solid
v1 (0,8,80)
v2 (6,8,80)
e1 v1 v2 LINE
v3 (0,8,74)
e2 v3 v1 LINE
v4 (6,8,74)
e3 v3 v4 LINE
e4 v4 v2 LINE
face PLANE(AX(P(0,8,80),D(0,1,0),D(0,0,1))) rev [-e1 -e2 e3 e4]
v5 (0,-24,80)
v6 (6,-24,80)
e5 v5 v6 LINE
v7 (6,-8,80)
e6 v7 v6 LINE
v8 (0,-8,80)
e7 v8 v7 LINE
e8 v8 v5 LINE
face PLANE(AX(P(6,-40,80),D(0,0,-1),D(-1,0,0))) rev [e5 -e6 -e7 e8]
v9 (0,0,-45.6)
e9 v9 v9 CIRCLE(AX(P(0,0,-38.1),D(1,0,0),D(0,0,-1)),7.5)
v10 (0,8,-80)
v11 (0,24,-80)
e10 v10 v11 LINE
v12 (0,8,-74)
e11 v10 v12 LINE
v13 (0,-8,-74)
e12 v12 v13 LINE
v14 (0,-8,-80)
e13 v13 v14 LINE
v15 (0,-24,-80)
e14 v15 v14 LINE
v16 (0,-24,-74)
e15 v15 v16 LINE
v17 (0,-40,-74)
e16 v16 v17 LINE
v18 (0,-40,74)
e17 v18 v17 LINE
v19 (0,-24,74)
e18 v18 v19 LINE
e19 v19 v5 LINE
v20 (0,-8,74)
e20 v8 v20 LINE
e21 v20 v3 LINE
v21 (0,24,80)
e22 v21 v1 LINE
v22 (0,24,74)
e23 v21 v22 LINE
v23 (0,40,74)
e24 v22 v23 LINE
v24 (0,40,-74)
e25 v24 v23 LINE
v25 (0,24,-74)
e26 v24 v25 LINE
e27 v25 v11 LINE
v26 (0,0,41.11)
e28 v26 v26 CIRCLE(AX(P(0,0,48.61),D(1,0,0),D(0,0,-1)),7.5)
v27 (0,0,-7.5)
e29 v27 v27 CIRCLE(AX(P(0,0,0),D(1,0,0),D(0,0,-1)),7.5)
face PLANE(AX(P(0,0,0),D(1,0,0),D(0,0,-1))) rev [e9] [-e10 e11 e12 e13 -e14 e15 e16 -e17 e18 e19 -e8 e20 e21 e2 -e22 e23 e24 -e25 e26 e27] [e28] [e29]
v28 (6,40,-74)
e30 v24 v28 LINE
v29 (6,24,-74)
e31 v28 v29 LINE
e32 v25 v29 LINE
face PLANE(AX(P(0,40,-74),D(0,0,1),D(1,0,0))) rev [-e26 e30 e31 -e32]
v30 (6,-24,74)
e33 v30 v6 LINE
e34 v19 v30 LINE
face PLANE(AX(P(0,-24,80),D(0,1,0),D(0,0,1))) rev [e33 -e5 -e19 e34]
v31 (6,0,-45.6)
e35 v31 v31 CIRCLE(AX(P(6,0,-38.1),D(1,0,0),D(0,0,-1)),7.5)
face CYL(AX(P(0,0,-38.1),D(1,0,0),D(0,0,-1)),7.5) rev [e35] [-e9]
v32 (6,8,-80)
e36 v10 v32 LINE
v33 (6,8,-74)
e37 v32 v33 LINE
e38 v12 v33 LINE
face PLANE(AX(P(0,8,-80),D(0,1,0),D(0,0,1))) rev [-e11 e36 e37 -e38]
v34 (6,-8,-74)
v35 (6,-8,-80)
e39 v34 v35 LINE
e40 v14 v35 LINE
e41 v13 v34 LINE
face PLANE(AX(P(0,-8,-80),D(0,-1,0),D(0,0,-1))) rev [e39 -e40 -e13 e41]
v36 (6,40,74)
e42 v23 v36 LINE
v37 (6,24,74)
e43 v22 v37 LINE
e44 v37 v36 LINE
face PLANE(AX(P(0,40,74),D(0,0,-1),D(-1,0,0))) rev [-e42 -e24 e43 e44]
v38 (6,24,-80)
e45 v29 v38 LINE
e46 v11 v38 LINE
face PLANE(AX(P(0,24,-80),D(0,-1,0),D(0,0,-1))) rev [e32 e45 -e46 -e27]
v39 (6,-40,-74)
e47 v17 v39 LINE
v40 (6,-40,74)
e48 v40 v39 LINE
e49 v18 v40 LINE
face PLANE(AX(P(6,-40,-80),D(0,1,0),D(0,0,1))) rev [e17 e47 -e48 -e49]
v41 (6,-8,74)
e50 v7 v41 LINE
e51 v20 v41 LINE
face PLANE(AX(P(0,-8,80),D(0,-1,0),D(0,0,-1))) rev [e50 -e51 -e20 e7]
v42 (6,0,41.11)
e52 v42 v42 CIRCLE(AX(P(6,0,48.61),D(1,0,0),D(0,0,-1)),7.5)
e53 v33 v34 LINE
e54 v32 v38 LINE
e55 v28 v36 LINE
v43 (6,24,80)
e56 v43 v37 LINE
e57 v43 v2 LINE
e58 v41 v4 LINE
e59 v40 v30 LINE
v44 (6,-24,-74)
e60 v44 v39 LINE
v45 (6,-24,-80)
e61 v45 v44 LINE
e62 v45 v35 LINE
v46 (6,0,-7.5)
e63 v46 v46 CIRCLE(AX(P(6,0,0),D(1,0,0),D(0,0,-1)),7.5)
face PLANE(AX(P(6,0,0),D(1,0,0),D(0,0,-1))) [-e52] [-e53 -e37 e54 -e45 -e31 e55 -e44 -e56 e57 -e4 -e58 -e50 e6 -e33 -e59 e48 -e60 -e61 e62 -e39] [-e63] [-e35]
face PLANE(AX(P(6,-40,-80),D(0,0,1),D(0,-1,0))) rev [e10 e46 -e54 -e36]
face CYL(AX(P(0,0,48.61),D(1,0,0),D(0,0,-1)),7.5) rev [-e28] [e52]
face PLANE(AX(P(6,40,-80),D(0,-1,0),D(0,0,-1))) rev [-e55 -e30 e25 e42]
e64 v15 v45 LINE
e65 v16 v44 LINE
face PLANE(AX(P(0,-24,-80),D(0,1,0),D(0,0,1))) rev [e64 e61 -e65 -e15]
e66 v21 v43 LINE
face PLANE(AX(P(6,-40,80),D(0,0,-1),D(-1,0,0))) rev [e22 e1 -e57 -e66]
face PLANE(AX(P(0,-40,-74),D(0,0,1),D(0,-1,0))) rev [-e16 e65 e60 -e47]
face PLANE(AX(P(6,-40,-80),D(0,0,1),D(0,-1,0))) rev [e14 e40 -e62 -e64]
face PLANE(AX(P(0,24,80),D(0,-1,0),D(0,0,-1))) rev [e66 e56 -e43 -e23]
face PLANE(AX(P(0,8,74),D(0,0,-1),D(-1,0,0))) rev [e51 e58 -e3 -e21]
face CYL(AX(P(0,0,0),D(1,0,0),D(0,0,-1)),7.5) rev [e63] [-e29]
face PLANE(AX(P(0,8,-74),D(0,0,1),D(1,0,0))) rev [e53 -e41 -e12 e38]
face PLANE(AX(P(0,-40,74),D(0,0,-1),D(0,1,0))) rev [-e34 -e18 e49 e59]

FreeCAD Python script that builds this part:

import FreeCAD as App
import Part
import Sketcher

V = App.Vector
Q = App.Units.Quantity

doc = App.newDocument("Part")
body = doc.addObject("PartDesign::Body", "Body")

sketch1 = body.newObject("Sketcher::SketchObject", "Sketch")
sketch1.AttachmentSupport = (doc.getObject("YZ_Plane"), [""])
sketch1.MapMode = "FlatFace"
sketch1.addGeometry([
    Part.LineSegment(V(40, 80, 0), V(-40, 80, 0)),
    Part.LineSegment(V(-40, 80, 0), V(-40, -80, 0)),
    Part.LineSegment(V(-40, -80, 0), V(40, -80, 0)),
    Part.LineSegment(V(40, -80, 0), V(40, 80, 0)),
], False)
sketch1.addConstraint([
    Sketcher.Constraint("Coincident", 0, 2, 1, 1),
    Sketcher.Constraint("Coincident", 1, 2, 2, 1),
    Sketcher.Constraint("Coincident", 2, 2, 3, 1),
    Sketcher.Constraint("Coincident", 3, 2, 0, 1),
    Sketcher.Constraint("Horizontal", 0),
    Sketcher.Constraint("Vertical", 1),
    Sketcher.Constraint("Horizontal", 2),
    Sketcher.Constraint("Vertical", 3),
    Sketcher.Constraint("Symmetric", 0, 2, 2, 2, -1, 1),
    Sketcher.Constraint("DistanceX", 0, 2, 0, 1, Q("80 mm")),
    Sketcher.Constraint("DistanceY", 1, 2, 1, 1, Q("160 mm")),
])
pad1 = body.newObject("PartDesign::Pad", "Pad")
pad1.Profile = sketch1
pad1.Length = 6

sketch2 = body.newObject("Sketcher::SketchObject", "Sketch001")
sketch2.AttachmentSupport = (doc.getObject("YZ_Plane"), [""])
sketch2.MapMode = "FlatFace"
sketch2.AttachmentOffset = App.Placement(V(0, 0, 6), App.Rotation())
sketch2.addGeometry([
    Part.Circle(V(0, 49, 0), V(0, 0, 1), 8),
    Part.Circle(V(0, 0, 0), V(0, 0, 1), 8),
    Part.Circle(V(0, -38, 0), V(0, 0, 1), 8),
], False)
sketch2.addConstraint([
    Sketcher.Constraint("Coincident", 1, 3, -1, 1),
    Sketcher.Constraint("Equal", 0, 1),
    Sketcher.Constraint("Equal", 1, 2),
    Sketcher.Constraint("PointOnObject", 0, 3, -2),
    Sketcher.Constraint("PointOnObject", 2, 3, -2),
    Sketcher.Constraint("Diameter", 0, Q("15 mm")),
    Sketcher.Constraint("DistanceY", 2, 3, -1, 1, Q("38.1 mm")),
    Sketcher.Constraint("DistanceY", -1, 1, 0, 3, Q("48.61 mm")),
])
pocket1 = body.newObject("PartDesign::Pocket", "Pocket")
pocket1.Profile = sketch2
pocket1.Length = 6

sketch3 = body.newObject("Sketcher::SketchObject", "Sketch002")
sketch3.AttachmentSupport = (doc.getObject("YZ_Plane"), [""])
sketch3.MapMode = "FlatFace"
sketch3.AttachmentOffset = App.Placement(V(0, 0, 6), App.Rotation())
sketch3.addGeometry([
    Part.LineSegment(V(40, 80, 0), V(24, 80, 0)),
    Part.LineSegment(V(24, 80, 0), V(24, 74, 0)),
    Part.LineSegment(V(24, 74, 0), V(40, 74, 0)),
    Part.LineSegment(V(40, 74, 0), V(40, 80, 0)),
    Part.LineSegment(V(-24, 80, 0), V(-40, 80, 0)),
    Part.LineSegment(V(-40, 80, 0), V(-40, 74, 0)),
    Part.LineSegment(V(-40, 74, 0), V(-24, 74, 0)),
    Part.LineSegment(V(-24, 74, 0), V(-24, 80, 0)),
    Part.LineSegment(V(-24, -74, 0), V(-40, -74, 0)),
    Part.LineSegment(V(-40, -74, 0), V(-40, -80, 0)),
    Part.LineSegment(V(-40, -80, 0), V(-24, -80, 0)),
    Part.LineSegment(V(-24, -80, 0), V(-24, -74, 0)),
    Part.LineSegment(V(40, -74, 0), V(24, -74, 0)),
    Part.LineSegment(V(24, -74, 0), V(24, -80, 0)),
    Part.LineSegment(V(24, -80, 0), V(40, -80, 0)),
    Part.LineSegment(V(40, -80, 0), V(40, -74, 0)),
    Part.LineSegment(V(8, -74, 0), V(-8, -74, 0)),
    Part.LineSegment(V(-8, -74, 0), V(-8, -80, 0)),
    Part.LineSegment(V(-8, -80, 0), V(8, -80, 0)),
    Part.LineSegment(V(8, -80, 0), V(8, -74, 0)),
    Part.LineSegment(V(8, 80, 0), V(-8, 80, 0)),
    Part.LineSegment(V(-8, 80, 0), V(-8, 74, 0)),
    Part.LineSegment(V(-8, 74, 0), V(8, 74, 0)),
    Part.LineSegment(V(8, 74, 0), V(8, 80, 0)),
], False)
sketch3.addConstraint([
    Sketcher.Constraint("Coincident", 0, 2, 1, 1),
    Sketcher.Constraint("Coincident", 1, 2, 2, 1),
    Sketcher.Constraint("Coincident", 2, 2, 3, 1),
    Sketcher.Constraint("Coincident", 3, 2, 0, 1),
    Sketcher.Constraint("Coincident", 4, 2, 5, 1),
    Sketcher.Constraint("Coincident", 5, 2, 6, 1),
    Sketcher.Constraint("Coincident", 6, 2, 7, 1),
    Sketcher.Constraint("Coincident", 7, 2, 4, 1),
    Sketcher.Constraint("Coincident", 8, 2, 9, 1),
    Sketcher.Constraint("Coincident", 9, 2, 10, 1),
    Sketcher.Constraint("Coincident", 10, 2, 11, 1),
    Sketcher.Constraint("Coincident", 11, 2, 8, 1),
    Sketcher.Constraint("Coincident", 12, 2, 13, 1),
    Sketcher.Constraint("Coincident", 13, 2, 14, 1),
    Sketcher.Constraint("Coincident", 14, 2, 15, 1),
    Sketcher.Constraint("Coincident", 15, 2, 12, 1),
    Sketcher.Constraint("Coincident", 16, 2, 17, 1),
    Sketcher.Constraint("Coincident", 17, 2, 18, 1),
    Sketcher.Constraint("Coincident", 18, 2, 19, 1),
    Sketcher.Constraint("Coincident", 19, 2, 16, 1),
    Sketcher.Constraint("Coincident", 20, 2, 21, 1),
    Sketcher.Constraint("Coincident", 21, 2, 22, 1),
    Sketcher.Constraint("Coincident", 22, 2, 23, 1),
    Sketcher.Constraint("Coincident", 23, 2, 20, 1),
    Sketcher.Constraint("Horizontal", 0),
    Sketcher.Constraint("Vertical", 1),
    Sketcher.Constraint("Horizontal", 2),
    Sketcher.Constraint("Vertical", 3),
    Sketcher.Constraint("Horizontal", 4),
    Sketcher.Constraint("Vertical", 5),
    Sketcher.Constraint("Horizontal", 6),
    Sketcher.Constraint("Vertical", 7),
    Sketcher.Constraint("Horizontal", 8),
    Sketcher.Constraint("Vertical", 9),
    Sketcher.Constraint("Horizontal", 10),
    Sketcher.Constraint("Vertical", 11),
    Sketcher.Constraint("Horizontal", 12),
    Sketcher.Constraint("Vertical", 13),
    Sketcher.Constraint("Horizontal", 14),
    Sketcher.Constraint("Vertical", 15),
    Sketcher.Constraint("Horizontal", 16),
    Sketcher.Constraint("Vertical", 17),
    Sketcher.Constraint("Horizontal", 18),
    Sketcher.Constraint("Vertical", 19),
    Sketcher.Constraint("Horizontal", 20),
    Sketcher.Constraint("Vertical", 21),
    Sketcher.Constraint("Horizontal", 22),
    Sketcher.Constraint("Vertical", 23),
    Sketcher.Constraint("Symmetric", 2, 2, 8, 2, -1, 1),
    Sketcher.Constraint("Symmetric", 0, 2, 10, 2, -1, 1),
    Sketcher.Constraint("Symmetric", 6, 2, 12, 2, -1, 1),
    Sketcher.Constraint("Symmetric", 4, 2, 14, 2, -1, 1),
    Sketcher.Constraint("Symmetric", 18, 2, 20, 2, -1, 1),
    Sketcher.Constraint("Symmetric", 16, 2, 22, 2, -1, 1),
    Sketcher.Constraint("Symmetric", 3, 2, 4, 2, -2),
    Sketcher.Constraint("Symmetric", 1, 2, 6, 2, -2),
    Sketcher.Constraint("Horizontal", 15, 2, 16, 2),
    Sketcher.Constraint("Horizontal", 14, 2, 17, 2),
    Sketcher.Constraint("Vertical", 17, 2, 20, 2),
    Sketcher.Constraint("Equal", 14, 16),
    Sketcher.Constraint("DistanceX", 0, 2, 0, 1, Q("16 mm")),
    Sketcher.Constraint("DistanceY", 1, 2, 1, 1, Q("6 mm")),
    Sketcher.Constraint("DistanceX", -1, 1, 0, 2, Q("24 mm")),
    Sketcher.Constraint("DistanceY", -1, 1, 0, 2, Q("80 mm")),
])
pocket2 = body.newObject("PartDesign::Pocket", "Pocket001")
pocket2.Profile = sketch3
pocket2.Length = 6

doc.recompute()
